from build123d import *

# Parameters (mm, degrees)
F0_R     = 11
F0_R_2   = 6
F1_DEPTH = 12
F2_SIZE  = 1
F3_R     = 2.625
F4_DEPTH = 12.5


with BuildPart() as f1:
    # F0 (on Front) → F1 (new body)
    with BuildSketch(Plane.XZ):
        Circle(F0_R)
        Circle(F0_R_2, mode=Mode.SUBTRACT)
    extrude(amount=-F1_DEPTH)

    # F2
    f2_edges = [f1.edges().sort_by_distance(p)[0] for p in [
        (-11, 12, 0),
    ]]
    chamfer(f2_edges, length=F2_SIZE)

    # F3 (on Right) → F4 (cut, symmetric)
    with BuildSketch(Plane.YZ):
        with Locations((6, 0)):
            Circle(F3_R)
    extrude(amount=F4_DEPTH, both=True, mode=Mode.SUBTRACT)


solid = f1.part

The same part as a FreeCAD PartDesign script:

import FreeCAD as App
import Part
import Sketcher


def edges_at(feature, points):
    """Names of the edges that pass closest to the given points."""
    edges = feature.Shape.Edges
    near = lambda p: min(range(len(edges)), key=lambda i: edges[i].distToShape(Part.Vertex(*p))[0])
    return sorted({f"Edge{near(p) + 1}" for p in points})

doc = App.newDocument("Part")
body = doc.addObject("PartDesign::Body", "Body")

# Sketch on XZ plane
sketch1 = body.newObject("Sketcher::SketchObject", "Sketch")
sketch1.AttachmentSupport = (doc.getObject("XZ_Plane"), [""])
sketch1.MapMode = "FlatFace"
sketch1.addGeometry(Part.Circle(App.Vector(0, 0, 0), App.Vector(0, 0, 1), 11), False)
sketch1.addGeometry(Part.Circle(App.Vector(0, 0, 0), App.Vector(0, 0, 1), 6), False)
sketch1.addConstraint(Sketcher.Constraint("Coincident", 0, 3, -1, 1))
sketch1.addConstraint(Sketcher.Constraint("Coincident", 1, 3, -1, 1))
sketch1.addConstraint(Sketcher.Constraint("Diameter", 0, 22.0))
sketch1.addConstraint(Sketcher.Constraint("Diameter", 1, 12.0))
pad1 = body.newObject("PartDesign::Pad", "Pad")
pad1.Profile = sketch1
pad1.Length = 12
pad1.Reversed = True
doc.recompute()

chamfer = body.newObject("PartDesign::Chamfer", "Chamfer")
chamfer.Base = (pad1, edges_at(pad1, [(-11, 12, 0)]))
chamfer.Size = 1

# Sketch on YZ plane
sketch2 = body.newObject("Sketcher::SketchObject", "Sketch001")
sketch2.AttachmentSupport = (doc.getObject("YZ_Plane"), [""])
sketch2.MapMode = "FlatFace"
sketch2.addGeometry(Part.Circle(App.Vector(6, 0, 0), App.Vector(0, 0, 1), 2.625), False)
sketch2.addConstraint(Sketcher.Constraint("PointOnObject", 0, 3, -1))
sketch2.addConstraint(Sketcher.Constraint("Diameter", 0, 5.25))
sketch2.addConstraint(Sketcher.Constraint("DistanceX", -1, 1, 0, 3, 6.0))
pocket1 = body.newObject("PartDesign::Pocket", "Pocket")
pocket1.Profile = sketch2
pocket1.Length = 25
pocket1.Midplane = True

doc.recompute()
